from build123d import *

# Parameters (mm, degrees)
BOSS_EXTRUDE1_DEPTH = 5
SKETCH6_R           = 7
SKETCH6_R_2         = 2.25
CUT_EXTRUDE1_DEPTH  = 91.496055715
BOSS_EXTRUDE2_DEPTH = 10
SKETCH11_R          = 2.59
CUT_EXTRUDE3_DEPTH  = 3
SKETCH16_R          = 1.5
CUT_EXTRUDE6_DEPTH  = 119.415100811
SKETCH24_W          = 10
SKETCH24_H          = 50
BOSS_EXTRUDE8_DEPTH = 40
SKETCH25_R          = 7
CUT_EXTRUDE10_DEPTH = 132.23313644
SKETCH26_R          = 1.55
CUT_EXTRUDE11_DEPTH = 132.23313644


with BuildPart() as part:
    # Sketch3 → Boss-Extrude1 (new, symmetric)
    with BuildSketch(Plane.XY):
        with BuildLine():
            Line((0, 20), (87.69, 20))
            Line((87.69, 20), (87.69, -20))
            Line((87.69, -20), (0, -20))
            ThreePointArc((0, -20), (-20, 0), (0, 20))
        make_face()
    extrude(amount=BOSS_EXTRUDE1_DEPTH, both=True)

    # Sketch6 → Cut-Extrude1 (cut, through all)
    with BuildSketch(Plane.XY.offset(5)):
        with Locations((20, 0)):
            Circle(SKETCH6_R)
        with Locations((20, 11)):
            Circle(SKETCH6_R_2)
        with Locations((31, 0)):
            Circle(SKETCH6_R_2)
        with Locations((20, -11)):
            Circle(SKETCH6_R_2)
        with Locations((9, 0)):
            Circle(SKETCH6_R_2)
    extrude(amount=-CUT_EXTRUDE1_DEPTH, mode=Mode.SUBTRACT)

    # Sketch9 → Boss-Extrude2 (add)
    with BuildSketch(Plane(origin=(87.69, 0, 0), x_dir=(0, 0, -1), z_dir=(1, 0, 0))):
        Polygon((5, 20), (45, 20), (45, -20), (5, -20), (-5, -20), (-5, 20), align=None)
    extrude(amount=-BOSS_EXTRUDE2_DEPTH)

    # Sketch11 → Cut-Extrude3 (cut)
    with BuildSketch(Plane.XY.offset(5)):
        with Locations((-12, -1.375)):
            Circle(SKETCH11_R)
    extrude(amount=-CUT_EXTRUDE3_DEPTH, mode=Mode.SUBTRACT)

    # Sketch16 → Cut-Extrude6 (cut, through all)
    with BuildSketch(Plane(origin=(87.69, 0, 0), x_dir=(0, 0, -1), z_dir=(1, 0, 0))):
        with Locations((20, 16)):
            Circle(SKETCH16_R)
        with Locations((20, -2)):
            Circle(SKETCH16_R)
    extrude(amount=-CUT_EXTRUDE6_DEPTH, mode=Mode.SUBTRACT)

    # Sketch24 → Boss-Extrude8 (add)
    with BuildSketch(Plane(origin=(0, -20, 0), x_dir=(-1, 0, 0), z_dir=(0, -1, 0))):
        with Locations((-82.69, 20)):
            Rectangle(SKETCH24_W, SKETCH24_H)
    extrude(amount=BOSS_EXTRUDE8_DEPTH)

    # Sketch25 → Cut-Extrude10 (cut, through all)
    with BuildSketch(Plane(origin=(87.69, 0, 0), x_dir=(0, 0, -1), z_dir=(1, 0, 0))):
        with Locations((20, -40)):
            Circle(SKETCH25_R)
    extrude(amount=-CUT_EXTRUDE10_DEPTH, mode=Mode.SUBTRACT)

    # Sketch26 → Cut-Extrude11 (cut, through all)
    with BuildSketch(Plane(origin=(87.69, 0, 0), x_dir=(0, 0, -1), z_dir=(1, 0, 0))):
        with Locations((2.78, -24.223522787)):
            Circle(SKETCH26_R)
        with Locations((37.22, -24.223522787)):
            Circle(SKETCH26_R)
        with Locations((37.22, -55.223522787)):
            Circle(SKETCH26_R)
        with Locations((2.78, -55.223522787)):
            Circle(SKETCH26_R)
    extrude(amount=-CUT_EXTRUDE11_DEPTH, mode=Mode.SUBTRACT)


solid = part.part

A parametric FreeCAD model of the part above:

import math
import FreeCAD as App
import Part
import Sketcher
from FreeCAD import Vector
Q = App.Units.Quantity


def add_polygon(sketch, points):
    """Adds a closed chain of lines whose ends are joined by coincident constraints."""
    first, n = sketch.GeometryCount, len(points)
    for a, b in zip(points, points[1:] + points[:1]):
        sketch.addGeometry(Part.LineSegment(App.Vector(*a, 0), App.Vector(*b, 0)), False)
    for i in range(n):
        sketch.addConstraint(Sketcher.Constraint("Coincident", first + i, 2, first + (i + 1) % n, 1))

doc = App.newDocument("Part")
params = doc.addObject("Spreadsheet::Sheet", "Params")
for row, (alias, value) in enumerate([
    ("sketch1_radius", "20 mm"),
    ("sketch1_width", "87.69 mm"),
    ("pad1_length", "10 mm"),
    ("sketch2_diameter", "14 mm"),
    ("sketch2_diameter2", "4.5 mm"),
    ("sketch3_width", "40 mm"),
    ("sketch3_height", "50 mm"),
    ("pad2_length", "10 mm"),
    ("sketch4_diameter", "5.18 mm"),
    ("pocket2_length", "3 mm"),
    ("sketch5_diameter", "3 mm"),
    ("sketch6_width", "10 mm"),
    ("sketch6_height", "50 mm"),
    ("pad3_length", "40 mm"),
    ("sketch7_diameter", "14 mm"),
    ("sketch8_diameter", "3.1 mm"),
], start=1):
    params.set(f"A{row}", alias)
    params.set(f"B{row}", "=" + value)
    params.setAlias(f"B{row}", alias)

body = doc.addObject("PartDesign::Body", "Body")

# Sketch on XY plane
sketch1 = doc.addObject("Sketcher::SketchObject", "Sketch")
body.addObject(sketch1)
sketch1.AttachmentSupport = (doc.XY_Plane, [""])
sketch1.MapMode = "FlatFace"
sketch1.addGeometry(Part.LineSegment(Vector(87.69, 20, 0), Vector(0, 20, 0)), False)
sketch1.addGeometry(Part.ArcOfCircle(Part.Circle(Vector(0, 0, 0), Vector(0, 0, 1), 20), math.radians(90), math.radians(270)), False)
sketch1.addGeometry(Part.LineSegment(Vector(0, -20, 0), Vector(87.69, -20, 0)), False)
sketch1.addGeometry(Part.LineSegment(Vector(87.69, -20, 0), Vector(87.69, 20, 0)), False)
sketch1.addConstraint(Sketcher.Constraint("Tangent", 0, 2, 1, 1))
sketch1.addConstraint(Sketcher.Constraint("Tangent", 1, 2, 2, 1))
sketch1.addConstraint(Sketcher.Constraint("Coincident", 2, 2, 3, 1))
sketch1.addConstraint(Sketcher.Constraint("Coincident", 3, 2, 0, 1))
sketch1.addConstraint(Sketcher.Constraint("Horizontal", 0))
sketch1.addConstraint(Sketcher.Constraint("Horizontal", 2))
sketch1.addConstraint(Sketcher.Constraint("Vertical", 3))
sketch1.addConstraint(Sketcher.Constraint("Coincident", 1, 3, -1, 1))
sketch1.addConstraint(Sketcher.Constraint("Radius", 1, Q("20 mm")))
sketch1.addConstraint(Sketcher.Constraint("DistanceX", 0, 2, 0, 1, Q("87.69 mm")))
sketch1.setExpression("Constraints[8]", "Params.sketch1_radius")
sketch1.setExpression("Constraints[9]", "Params.sketch1_width")
pad1 = doc.addObject("PartDesign::Pad", "Pad")
body.addObject(pad1)
pad1.Profile = sketch1
pad1.setExpression("Length", "Params.pad1_length")
pad1.Midplane = True

# Sketch on XY plane
sketch2 = doc.addObject("Sketcher::SketchObject", "Sketch001")
body.addObject(sketch2)
sketch2.AttachmentSupport = (doc.XY_Plane, [""])
sketch2.MapMode = "FlatFace"
sketch2.AttachmentOffset = App.Placement(Vector(0, 0, 5), App.Rotation())
sketch2.addGeometry(Part.Circle(Vector(20, 0, 0), Vector(0, 0, 1), 7), False)
sketch2.addGeometry(Part.Circle(Vector(20, 11, 0), Vector(0, 0, 1), 2.25), False)
sketch2.addGeometry(Part.Circle(Vector(31, 0, 0), Vector(0, 0, 1), 2.25), False)
sketch2.addGeometry(Part.Circle(Vector(20, -11, 0), Vector(0, 0, 1), 2.25), False)
sketch2.addGeometry(Part.Circle(Vector(9, 0, 0), Vector(0, 0, 1), 2.25), False)
sketch2.addConstraint(Sketcher.Constraint("Equal", 1, 2))
sketch2.addConstraint(Sketcher.Constraint("Equal", 2, 3))
sketch2.addConstraint(Sketcher.Constraint("Equal", 3, 4))
sketch2.addConstraint(Sketcher.Constraint("Symmetric", 1, 3, 3, 3, -1))
sketch2.addConstraint(Sketcher.Constraint("PointOnObject", 0, 3, -1))
sketch2.addConstraint(Sketcher.Constraint("PointOnObject", 2, 3, -1))
sketch2.addConstraint(Sketcher.Constraint("PointOnObject", 4, 3, -1))
sketch2.addConstraint(Sketcher.Constraint("Vertical", 0, 3, 1, 3))
sketch2.addConstraint(Sketcher.Constraint("Diameter", 0, Q("14 mm")))
sketch2.addConstraint(Sketcher.Constraint("Diameter", 1, Q("4.5 mm")))
sketch2.addConstraint(Sketcher.Constraint("DistanceX", -1, 1, 0, 3, Q("20 mm")))
sketch2.addConstraint(Sketcher.Constraint("DistanceY", -1, 1, 1, 3, Q("11 mm")))
sketch2.addConstraint(Sketcher.Constraint("DistanceX", -1, 1, 2, 3, Q("31 mm")))
sketch2.addConstraint(Sketcher.Constraint("DistanceX", -1, 1, 4, 3, Q("9 mm")))
sketch2.setExpression("Constraints[8]", "Params.sketch2_diameter")
sketch2.setExpression("Constraints[9]", "Params.sketch2_diameter2")
pocket1 = doc.addObject("PartDesign::Pocket", "Pocket")
body.addObject(pocket1)
pocket1.Profile = sketch2
pocket1.Type = "ThroughAll"

# Sketch on YZ plane
sketch3 = doc.addObject("Sketcher::SketchObject", "Sketch002")
body.addObject(sketch3)
sketch3.AttachmentSupport = (doc.YZ_Plane, [""])
sketch3.MapMode = "FlatFace"
sketch3.AttachmentOffset = App.Placement(Vector(0, 0, 87.69), App.Rotation())
add_polygon(sketch3, [(20, -45), (20, 5), (-20, 5), (-20, -45)])  # lines 0-3
sketch3.addConstraint(Sketcher.Constraint("Vertical", 0))
sketch3.addConstraint(Sketcher.Constraint("Horizontal", 1))
sketch3.addConstraint(Sketcher.Constraint("Vertical", 2))
sketch3.addConstraint(Sketcher.Constraint("Horizontal", 3))
sketch3.addConstraint(Sketcher.Constraint("DistanceX", 1, 2, 1, 1, Q("40 mm")))
sketch3.addConstraint(Sketcher.Constraint("DistanceY", 0, 1, 0, 2, Q("50 mm")))
sketch3.addConstraint(Sketcher.Constraint("DistanceX", -1, 1, 0, 2, Q("20 mm")))
sketch3.addConstraint(Sketcher.Constraint("DistanceY", -1, 1, 0, 2, Q("5 mm")))
sketch3.setExpression("Constraints[8]", "Params.sketch3_width")
sketch3.setExpression("Constraints[9]", "Params.sketch3_height")
pad2 = doc.addObject("PartDesign::Pad", "Pad001")
body.addObject(pad2)
pad2.Profile = sketch3
pad2.setExpression("Length", "Params.pad2_length")
pad2.Reversed = True

# Sketch on XY plane
sketch4 = doc.addObject("Sketcher::SketchObject", "Sketch003")
body.addObject(sketch4)
sketch4.AttachmentSupport = (doc.XY_Plane, [""])
sketch4.MapMode = "FlatFace"
sketch4.AttachmentOffset = App.Placement(Vector(0, 0, 5), App.Rotation())
sketch4.addGeometry(Part.Circle(Vector(-12, -1.375, 0), Vector(0, 0, 1), 2.59), False)
sketch4.addConstraint(Sketcher.Constraint("Diameter", 0, Q("5.18 mm")))
sketch4.addConstraint(Sketcher.Constraint("DistanceX", 0, 3, -1, 1, Q("12 mm")))
sketch4.addConstraint(Sketcher.Constraint("DistanceY", 0, 3, -1, 1, Q("1.375 mm")))
sketch4.setExpression("Constraints[0]", "Params.sketch4_diameter")
pocket2 = doc.addObject("PartDesign::Pocket", "Pocket001")
body.addObject(pocket2)
pocket2.Profile = sketch4
pocket2.setExpression("Length", "Params.pocket2_length")

# Sketch on YZ plane
sketch5 = doc.addObject("Sketcher::SketchObject", "Sketch004")
body.addObject(sketch5)
sketch5.AttachmentSupport = (doc.YZ_Plane, [""])
sketch5.MapMode = "FlatFace"
sketch5.AttachmentOffset = App.Placement(Vector(0, 0, 87.69), App.Rotation())
sketch5.addGeometry(Part.Circle(Vector(16, -20, 0), Vector(0, 0, 1), 1.5), False)
sketch5.addGeometry(Part.Circle(Vector(-2, -20, 0), Vector(0, 0, 1), 1.5), False)
sketch5.addConstraint(Sketcher.Constraint("Equal", 0, 1))
sketch5.addConstraint(Sketcher.Constraint("Horizontal", 0, 3, 1, 3))
sketch5.addConstraint(Sketcher.Constraint("Diameter", 0, Q("3 mm")))
sketch5.addConstraint(Sketcher.Constraint("DistanceX", -1, 1, 0, 3, Q("16 mm")))
sketch5.addConstraint(Sketcher.Constraint("DistanceY", 0, 3, -1, 1, Q("20 mm")))
sketch5.addConstraint(Sketcher.Constraint("DistanceX", 1, 3, -1, 1, Q("2 mm")))
sketch5.setExpression("Constraints[2]", "Params.sketch5_diameter")
pocket3 = doc.addObject("PartDesign::Pocket", "Pocket002")
body.addObject(pocket3)
pocket3.Profile = sketch5
pocket3.Type = "ThroughAll"

# Sketch on XZ plane
sketch6 = doc.addObject("Sketcher::SketchObject", "Sketch005")
body.addObject(sketch6)
sketch6.AttachmentSupport = (doc.XZ_Plane, [""])
sketch6.MapMode = "FlatFace"
sketch6.AttachmentOffset = App.Placement(Vector(0, 0, 20), App.Rotation())
add_polygon(sketch6, [(87.69, -45), (87.69, 5), (77.69, 5), (77.69, -45)])  # lines 0-3
sketch6.addConstraint(Sketcher.Constraint("Vertical", 0))
sketch6.addConstraint(Sketcher.Constraint("Horizontal", 1))
sketch6.addConstraint(Sketcher.Constraint("Vertical", 2))
sketch6.addConstraint(Sketcher.Constraint("Horizontal", 3))
sketch6.addConstraint(Sketcher.Constraint("DistanceX", 1, 2, 1, 1, Q("10 mm")))
sketch6.addConstraint(Sketcher.Constraint("DistanceY", 0, 1, 0, 2, Q("50 mm")))
sketch6.addConstraint(Sketcher.Constraint("DistanceY", -1, 1, 0, 2, Q("5 mm")))
sketch6.addConstraint(Sketcher.Constraint("DistanceX", -1, 1, 0, 2, Q("87.69 mm")))
sketch6.setExpression("Constraints[8]", "Params.sketch6_width")
sketch6.setExpression("Constraints[9]", "Params.sketch6_height")
pad3 = doc.addObject("PartDesign::Pad", "Pad002")
body.addObject(pad3)
pad3.Profile = sketch6
pad3.setExpression("Length", "Params.pad3_length")

# Sketch on YZ plane
sketch7 = doc.addObject("Sketcher::SketchObject", "Sketch006")
body.addObject(sketch7)
sketch7.AttachmentSupport = (doc.YZ_Plane, [""])
sketch7.MapMode = "FlatFace"
sketch7.AttachmentOffset = App.Placement(Vector(0, 0, 87.69), App.Rotation())
sketch7.addGeometry(Part.Circle(Vector(-40, -20, 0), Vector(0, 0, 1), 7), False)
sketch7.addConstraint(Sketcher.Constraint("Diameter", 0, Q("14 mm")))
sketch7.addConstraint(Sketcher.Constraint("DistanceX", 0, 3, -1, 1, Q("40 mm")))
sketch7.addConstraint(Sketcher.Constraint("DistanceY", 0, 3, -1, 1, Q("20 mm")))
sketch7.setExpression("Constraints[0]", "Params.sketch7_diameter")
pocket4 = doc.addObject("PartDesign::Pocket", "Pocket003")
body.addObject(pocket4)
pocket4.Profile = sketch7
pocket4.Type = "ThroughAll"

# Sketch on YZ plane
sketch8 = doc.addObject("Sketcher::SketchObject", "Sketch007")
body.addObject(sketch8)
sketch8.AttachmentSupport = (doc.YZ_Plane, [""])
sketch8.MapMode = "FlatFace"
sketch8.AttachmentOffset = App.Placement(Vector(0, 0, 87.69), App.Rotation())
sketch8.addGeometry(Part.Circle(Vector(-24.223523, -2.78, 0), Vector(0, 0, 1), 1.55), False)
sketch8.addGeometry(Part.Circle(Vector(-24.223523, -37.22, 0), Vector(0, 0, 1), 1.55), False)
sketch8.addGeometry(Part.Circle(Vector(-55.223523, -37.22, 0), Vector(0, 0, 1), 1.55), False)
sketch8.addGeometry(Part.Circle(Vector(-55.223523, -2.78, 0), Vector(0, 0, 1), 1.55), False)
sketch8.addConstraint(Sketcher.Constraint("Equal", 0, 1))
sketch8.addConstraint(Sketcher.Constraint("Equal", 1, 2))
sketch8.addConstraint(Sketcher.Constraint("Equal", 2, 3))
sketch8.addConstraint(Sketcher.Constraint("Horizontal", 1, 3, 2, 3))
sketch8.addConstraint(Sketcher.Constraint("Horizontal", 0, 3, 3, 3))
sketch8.addConstraint(Sketcher.Constraint("Vertical", 0, 3, 1, 3))
sketch8.addConstraint(Sketcher.Constraint("Vertical", 2, 3, 3, 3))
sketch8.addConstraint(Sketcher.Constraint("Diameter", 0, Q("3.1 mm")))
sketch8.addConstraint(Sketcher.Constraint("DistanceX", 2, 3, 1, 3, Q("31 mm")))
sketch8.addConstraint(Sketcher.Constraint("DistanceY", 0, 3, -1, 1, Q("2.78 mm")))
sketch8.addConstraint(Sketcher.Constraint("DistanceY", 1, 3, -1, 1, Q("37.22 mm")))
sketch8.addConstraint(Sketcher.Constraint("DistanceX", 0, 3, -1, 1, Q("24.223523 mm")))
sketch8.setExpression("Constraints[7]", "Params.sketch8_diameter")
pocket5 = doc.addObject("PartDesign::Pocket", "Pocket004")
body.addObject(pocket5)
pocket5.Profile = sketch8
pocket5.Type = "ThroughAll"

doc.recompute()
